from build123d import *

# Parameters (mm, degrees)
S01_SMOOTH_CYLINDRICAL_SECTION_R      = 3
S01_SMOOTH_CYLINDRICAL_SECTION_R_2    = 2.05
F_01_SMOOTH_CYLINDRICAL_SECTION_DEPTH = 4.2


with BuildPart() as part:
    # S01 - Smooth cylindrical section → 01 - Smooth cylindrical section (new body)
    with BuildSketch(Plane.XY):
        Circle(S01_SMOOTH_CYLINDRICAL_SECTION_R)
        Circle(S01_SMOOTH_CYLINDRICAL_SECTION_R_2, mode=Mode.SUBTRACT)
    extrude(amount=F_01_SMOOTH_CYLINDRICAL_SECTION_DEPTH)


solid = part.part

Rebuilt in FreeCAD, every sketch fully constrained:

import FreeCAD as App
import Part
import Sketcher

V = App.Vector

doc = App.newDocument("Part")
body = doc.addObject("PartDesign::Body", "Body")

sketch1 = body.newObject("Sketcher::SketchObject", "Sketch")
sketch1.AttachmentSupport = (doc.getObject("XY_Plane"), [""])
sketch1.MapMode = "FlatFace"
sketch1.addGeometry([
    Part.Circle(V(0, 0, 0), V(0, 0, 1), 3),
    Part.Circle(V(0, 0, 0), V(0, 0, 1), 2.05),
], False)
sketch1.addConstraint([
    Sketcher.Constraint("Coincident", 0, 3, -1, 1),
    Sketcher.Constraint("Coincident", 1, 3, -1, 1),
    Sketcher.Constraint("Diameter", 0, 6.0),
    Sketcher.Constraint("Diameter", 1, 4.1),
])
pad1 = body.newObject("PartDesign::Pad", "Pad")
pad1.Profile = sketch1
pad1.Length = 4.2

doc.recompute()
